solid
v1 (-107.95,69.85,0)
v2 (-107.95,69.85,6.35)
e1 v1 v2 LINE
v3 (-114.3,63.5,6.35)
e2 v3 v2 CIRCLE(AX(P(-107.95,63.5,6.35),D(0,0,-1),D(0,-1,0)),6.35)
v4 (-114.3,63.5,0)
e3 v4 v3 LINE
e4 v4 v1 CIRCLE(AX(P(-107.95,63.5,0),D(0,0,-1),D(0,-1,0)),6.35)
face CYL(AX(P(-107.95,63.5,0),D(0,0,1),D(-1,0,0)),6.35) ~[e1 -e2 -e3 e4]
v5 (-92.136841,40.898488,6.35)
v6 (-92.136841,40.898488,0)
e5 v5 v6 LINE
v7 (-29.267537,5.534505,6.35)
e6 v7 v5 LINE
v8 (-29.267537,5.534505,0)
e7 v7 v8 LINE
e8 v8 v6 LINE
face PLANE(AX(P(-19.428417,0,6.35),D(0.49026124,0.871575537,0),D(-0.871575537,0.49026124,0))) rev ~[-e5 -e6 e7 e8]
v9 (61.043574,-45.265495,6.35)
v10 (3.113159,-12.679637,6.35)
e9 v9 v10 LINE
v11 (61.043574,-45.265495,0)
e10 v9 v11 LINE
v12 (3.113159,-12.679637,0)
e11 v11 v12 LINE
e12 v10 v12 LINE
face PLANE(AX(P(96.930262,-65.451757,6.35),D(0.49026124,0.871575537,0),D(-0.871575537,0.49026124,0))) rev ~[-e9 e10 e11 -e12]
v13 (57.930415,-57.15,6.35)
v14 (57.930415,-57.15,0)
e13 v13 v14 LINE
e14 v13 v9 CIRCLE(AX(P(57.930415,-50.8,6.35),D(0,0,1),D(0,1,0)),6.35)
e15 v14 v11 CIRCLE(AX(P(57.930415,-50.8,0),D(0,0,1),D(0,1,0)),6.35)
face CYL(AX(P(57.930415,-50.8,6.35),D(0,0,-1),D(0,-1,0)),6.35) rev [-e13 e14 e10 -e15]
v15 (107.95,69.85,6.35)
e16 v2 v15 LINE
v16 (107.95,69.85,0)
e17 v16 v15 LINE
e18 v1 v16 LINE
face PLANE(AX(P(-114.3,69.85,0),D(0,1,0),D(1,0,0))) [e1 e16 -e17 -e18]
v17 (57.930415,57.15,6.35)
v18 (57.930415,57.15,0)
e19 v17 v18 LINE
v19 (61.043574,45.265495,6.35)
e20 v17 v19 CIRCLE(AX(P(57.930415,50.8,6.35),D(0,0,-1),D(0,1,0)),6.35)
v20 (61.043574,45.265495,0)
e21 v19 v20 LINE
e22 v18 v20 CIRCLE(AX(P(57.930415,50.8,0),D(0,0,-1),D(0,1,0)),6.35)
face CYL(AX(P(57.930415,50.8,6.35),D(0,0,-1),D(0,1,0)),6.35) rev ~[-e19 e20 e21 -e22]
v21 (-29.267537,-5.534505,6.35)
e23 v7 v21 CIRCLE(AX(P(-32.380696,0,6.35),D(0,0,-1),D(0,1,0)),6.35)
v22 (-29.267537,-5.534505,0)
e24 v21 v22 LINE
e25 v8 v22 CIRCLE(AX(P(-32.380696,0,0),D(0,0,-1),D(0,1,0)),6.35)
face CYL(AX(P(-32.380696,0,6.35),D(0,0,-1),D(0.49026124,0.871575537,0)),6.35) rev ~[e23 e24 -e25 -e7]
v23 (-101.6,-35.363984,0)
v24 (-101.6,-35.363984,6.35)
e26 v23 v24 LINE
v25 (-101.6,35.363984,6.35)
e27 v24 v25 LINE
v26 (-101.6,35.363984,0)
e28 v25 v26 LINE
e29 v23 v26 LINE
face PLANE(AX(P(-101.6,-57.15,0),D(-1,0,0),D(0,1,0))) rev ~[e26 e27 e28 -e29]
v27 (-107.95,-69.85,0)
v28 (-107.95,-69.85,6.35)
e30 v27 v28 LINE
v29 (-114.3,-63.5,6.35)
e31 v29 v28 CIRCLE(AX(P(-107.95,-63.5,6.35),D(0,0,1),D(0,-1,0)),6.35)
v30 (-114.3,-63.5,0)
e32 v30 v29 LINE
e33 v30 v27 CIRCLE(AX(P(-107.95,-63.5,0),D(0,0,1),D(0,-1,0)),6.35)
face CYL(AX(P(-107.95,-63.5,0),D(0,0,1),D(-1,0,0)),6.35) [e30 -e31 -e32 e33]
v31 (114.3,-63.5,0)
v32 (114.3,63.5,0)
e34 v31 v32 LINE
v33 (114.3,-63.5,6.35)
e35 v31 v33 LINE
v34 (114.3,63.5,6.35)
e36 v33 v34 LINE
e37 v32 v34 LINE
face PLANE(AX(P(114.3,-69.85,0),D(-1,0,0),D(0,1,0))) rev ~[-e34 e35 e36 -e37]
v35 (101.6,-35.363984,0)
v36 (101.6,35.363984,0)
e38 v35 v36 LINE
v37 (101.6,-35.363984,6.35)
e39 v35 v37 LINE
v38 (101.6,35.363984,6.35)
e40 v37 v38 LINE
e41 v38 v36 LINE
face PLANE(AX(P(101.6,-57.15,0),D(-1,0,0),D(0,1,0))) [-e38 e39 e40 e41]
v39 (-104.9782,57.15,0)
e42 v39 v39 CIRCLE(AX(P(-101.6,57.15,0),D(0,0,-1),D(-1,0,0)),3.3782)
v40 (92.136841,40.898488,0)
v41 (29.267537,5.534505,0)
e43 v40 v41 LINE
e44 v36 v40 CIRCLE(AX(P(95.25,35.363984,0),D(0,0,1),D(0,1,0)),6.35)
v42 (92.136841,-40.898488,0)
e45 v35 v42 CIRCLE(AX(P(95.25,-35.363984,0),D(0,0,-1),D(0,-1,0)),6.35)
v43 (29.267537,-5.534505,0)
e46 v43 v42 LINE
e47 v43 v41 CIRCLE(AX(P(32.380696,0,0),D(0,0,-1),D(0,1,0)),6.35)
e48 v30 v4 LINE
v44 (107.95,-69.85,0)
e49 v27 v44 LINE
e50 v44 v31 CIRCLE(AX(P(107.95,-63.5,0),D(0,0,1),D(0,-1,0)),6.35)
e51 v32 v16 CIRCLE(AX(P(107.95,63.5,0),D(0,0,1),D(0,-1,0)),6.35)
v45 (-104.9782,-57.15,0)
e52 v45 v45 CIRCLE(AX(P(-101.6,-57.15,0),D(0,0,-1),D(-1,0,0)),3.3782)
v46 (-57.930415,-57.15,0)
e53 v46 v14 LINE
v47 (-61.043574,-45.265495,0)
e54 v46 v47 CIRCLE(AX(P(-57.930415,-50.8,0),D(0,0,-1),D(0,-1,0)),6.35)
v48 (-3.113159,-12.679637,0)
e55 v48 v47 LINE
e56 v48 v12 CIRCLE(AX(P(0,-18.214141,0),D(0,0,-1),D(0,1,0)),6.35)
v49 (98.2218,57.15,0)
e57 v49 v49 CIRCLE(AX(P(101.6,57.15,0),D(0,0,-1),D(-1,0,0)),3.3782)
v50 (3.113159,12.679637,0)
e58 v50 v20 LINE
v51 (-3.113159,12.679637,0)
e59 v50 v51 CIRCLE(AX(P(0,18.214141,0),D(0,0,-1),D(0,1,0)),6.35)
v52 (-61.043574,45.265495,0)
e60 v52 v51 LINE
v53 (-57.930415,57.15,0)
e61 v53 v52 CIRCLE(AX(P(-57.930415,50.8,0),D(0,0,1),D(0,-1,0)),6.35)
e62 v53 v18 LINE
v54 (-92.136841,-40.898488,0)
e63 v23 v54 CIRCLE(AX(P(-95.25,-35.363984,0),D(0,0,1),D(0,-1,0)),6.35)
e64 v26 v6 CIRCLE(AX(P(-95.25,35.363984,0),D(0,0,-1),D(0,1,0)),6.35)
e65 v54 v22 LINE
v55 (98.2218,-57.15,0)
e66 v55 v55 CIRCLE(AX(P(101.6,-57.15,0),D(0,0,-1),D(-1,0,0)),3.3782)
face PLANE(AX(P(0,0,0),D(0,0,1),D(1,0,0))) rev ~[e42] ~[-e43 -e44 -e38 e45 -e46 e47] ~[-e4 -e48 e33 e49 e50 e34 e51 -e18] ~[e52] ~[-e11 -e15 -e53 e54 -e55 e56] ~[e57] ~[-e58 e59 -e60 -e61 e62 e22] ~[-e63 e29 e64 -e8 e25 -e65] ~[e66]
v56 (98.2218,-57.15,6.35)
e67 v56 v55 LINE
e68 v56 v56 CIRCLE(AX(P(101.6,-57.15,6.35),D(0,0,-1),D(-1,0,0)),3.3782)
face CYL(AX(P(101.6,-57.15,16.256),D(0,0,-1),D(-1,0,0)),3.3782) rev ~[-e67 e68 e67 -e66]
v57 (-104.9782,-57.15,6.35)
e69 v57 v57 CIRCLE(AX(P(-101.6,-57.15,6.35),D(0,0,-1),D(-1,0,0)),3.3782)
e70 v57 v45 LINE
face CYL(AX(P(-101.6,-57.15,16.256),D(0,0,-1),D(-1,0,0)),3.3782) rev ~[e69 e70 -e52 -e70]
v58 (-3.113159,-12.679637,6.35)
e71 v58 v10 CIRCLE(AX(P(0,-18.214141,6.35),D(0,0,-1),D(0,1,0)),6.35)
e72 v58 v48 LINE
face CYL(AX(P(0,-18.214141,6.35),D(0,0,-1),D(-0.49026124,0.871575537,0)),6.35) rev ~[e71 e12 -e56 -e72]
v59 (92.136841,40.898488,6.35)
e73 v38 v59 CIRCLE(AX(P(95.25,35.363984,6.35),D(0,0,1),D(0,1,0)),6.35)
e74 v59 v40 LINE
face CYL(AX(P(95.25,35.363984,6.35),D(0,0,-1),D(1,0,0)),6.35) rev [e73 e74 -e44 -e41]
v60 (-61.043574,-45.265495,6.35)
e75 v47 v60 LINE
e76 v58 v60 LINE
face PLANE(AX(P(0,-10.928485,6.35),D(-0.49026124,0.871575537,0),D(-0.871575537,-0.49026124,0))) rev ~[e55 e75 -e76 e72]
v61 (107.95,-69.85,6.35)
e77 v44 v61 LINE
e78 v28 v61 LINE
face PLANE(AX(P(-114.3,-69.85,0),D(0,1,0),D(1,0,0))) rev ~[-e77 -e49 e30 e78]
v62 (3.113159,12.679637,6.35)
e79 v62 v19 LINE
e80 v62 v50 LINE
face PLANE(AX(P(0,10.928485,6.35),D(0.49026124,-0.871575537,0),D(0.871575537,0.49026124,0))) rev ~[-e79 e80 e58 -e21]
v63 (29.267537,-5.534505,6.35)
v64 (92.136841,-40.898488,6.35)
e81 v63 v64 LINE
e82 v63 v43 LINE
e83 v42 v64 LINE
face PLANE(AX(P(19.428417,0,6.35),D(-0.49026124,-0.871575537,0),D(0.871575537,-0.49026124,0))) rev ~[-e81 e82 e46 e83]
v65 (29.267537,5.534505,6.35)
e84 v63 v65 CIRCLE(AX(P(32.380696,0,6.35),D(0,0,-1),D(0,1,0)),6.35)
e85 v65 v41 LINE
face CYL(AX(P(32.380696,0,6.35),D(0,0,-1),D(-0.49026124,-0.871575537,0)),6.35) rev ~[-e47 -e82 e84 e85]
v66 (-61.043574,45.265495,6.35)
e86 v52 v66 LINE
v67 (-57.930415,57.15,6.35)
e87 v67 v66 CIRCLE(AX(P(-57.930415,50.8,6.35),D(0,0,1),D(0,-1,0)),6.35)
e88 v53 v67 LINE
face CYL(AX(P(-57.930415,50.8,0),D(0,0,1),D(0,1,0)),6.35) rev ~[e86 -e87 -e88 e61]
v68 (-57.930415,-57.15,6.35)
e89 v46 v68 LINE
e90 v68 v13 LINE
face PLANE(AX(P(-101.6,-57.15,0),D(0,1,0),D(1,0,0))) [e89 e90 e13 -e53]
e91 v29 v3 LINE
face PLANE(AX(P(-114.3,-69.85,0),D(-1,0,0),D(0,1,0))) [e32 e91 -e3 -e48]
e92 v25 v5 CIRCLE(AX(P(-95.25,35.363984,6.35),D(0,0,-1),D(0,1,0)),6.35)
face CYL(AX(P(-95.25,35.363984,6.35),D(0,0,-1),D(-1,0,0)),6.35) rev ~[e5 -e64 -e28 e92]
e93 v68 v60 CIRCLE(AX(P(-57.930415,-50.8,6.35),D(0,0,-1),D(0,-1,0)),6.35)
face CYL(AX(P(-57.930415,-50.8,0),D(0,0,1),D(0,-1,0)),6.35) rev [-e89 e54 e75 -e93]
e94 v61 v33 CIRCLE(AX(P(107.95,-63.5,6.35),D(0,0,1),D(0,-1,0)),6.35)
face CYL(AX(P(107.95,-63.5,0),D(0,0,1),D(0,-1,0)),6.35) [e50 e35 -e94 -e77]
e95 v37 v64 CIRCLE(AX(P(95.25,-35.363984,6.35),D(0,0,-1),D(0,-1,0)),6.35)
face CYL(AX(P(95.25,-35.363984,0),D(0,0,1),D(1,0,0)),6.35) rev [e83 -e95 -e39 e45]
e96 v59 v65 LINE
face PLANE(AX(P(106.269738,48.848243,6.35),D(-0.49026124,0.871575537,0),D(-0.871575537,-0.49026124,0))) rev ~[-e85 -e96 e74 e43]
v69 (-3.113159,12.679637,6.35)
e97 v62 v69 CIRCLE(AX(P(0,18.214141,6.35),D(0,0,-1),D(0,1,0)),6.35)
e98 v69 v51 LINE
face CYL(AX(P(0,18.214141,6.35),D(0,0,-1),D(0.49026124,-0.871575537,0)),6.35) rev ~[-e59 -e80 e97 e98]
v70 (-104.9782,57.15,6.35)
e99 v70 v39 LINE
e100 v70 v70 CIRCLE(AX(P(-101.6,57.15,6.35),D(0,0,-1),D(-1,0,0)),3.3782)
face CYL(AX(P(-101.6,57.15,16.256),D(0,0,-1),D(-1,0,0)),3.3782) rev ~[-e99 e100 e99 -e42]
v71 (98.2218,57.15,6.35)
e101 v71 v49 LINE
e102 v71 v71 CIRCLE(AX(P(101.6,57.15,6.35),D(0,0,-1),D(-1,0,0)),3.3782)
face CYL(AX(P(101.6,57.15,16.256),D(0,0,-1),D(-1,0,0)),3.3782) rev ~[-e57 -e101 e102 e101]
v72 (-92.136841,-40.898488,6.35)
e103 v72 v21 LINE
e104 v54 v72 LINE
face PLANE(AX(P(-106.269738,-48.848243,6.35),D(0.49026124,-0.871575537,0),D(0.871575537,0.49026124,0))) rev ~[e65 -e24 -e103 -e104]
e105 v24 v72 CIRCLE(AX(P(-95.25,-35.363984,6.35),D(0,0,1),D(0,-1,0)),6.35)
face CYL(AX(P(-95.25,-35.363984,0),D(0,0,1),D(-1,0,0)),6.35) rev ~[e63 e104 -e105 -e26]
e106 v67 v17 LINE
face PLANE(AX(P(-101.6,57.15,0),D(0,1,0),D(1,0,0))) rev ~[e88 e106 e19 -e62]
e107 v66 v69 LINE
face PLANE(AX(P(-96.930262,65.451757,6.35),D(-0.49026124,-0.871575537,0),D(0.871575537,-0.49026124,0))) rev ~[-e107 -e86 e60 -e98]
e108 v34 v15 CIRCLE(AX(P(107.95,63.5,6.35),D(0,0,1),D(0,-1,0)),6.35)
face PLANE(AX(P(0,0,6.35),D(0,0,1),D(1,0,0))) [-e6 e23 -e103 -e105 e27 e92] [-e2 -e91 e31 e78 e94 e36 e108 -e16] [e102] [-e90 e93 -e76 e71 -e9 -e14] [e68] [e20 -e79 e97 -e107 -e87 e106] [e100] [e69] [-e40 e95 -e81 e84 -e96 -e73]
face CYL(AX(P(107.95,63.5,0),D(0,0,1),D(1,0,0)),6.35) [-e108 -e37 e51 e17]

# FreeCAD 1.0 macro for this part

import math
import FreeCAD as App
import Part
import Sketcher

V = App.Vector
Q = App.Units.Quantity


def edges_at(feature, points):
    """Names of the edges that pass closest to the given points."""
    edges = feature.Shape.Edges
    near = lambda p: min(range(len(edges)), key=lambda i: edges[i].distToShape(Part.Vertex(*p))[0])
    return sorted({f"Edge{near(p) + 1}" for p in points})

doc = App.newDocument("Part")
body = doc.addObject("PartDesign::Body", "Body")

# Sketch on XY plane
sketch1 = body.newObject("Sketcher::SketchObject", "Sketch")
sketch1.AttachmentSupport = (doc.getObject("XY_Plane"), [""])
sketch1.MapMode = "FlatFace"
sketch1.addGeometry([
    Part.LineSegment(V(-114.3, 69.85, 0), V(-114.3, -69.85, 0)),  # 0
    Part.LineSegment(V(-114.3, -69.85, 0), V(114.3, -69.85, 0)),  # 1
    Part.LineSegment(V(114.3, -69.85, 0), V(114.3, 69.85, 0)),  # 2
    Part.LineSegment(V(114.3, 69.85, 0), V(-114.3, 69.85, 0)),  # 3
    Part.LineSegment(V(101.6, -57.15, 0), V(-101.6, -57.15, 0)),  # 4
    Part.LineSegment(V(-101.6, -57.15, 0), V(-101.6, 57.15, 0)),  # 5
    Part.LineSegment(V(-101.6, 57.15, 0), V(101.6, 57.15, 0)),  # 6
    Part.LineSegment(V(101.6, 57.15, 0), V(101.6, -57.15, 0)),  # 7
], False)
sketch1.addConstraint([
    Sketcher.Constraint("Coincident", 0, 2, 1, 1),
    Sketcher.Constraint("Coincident", 1, 2, 2, 1),
    Sketcher.Constraint("Coincident", 2, 2, 3, 1),
    Sketcher.Constraint("Coincident", 3, 2, 0, 1),
    Sketcher.Constraint("Coincident", 4, 2, 5, 1),
    Sketcher.Constraint("Coincident", 5, 2, 6, 1),
    Sketcher.Constraint("Coincident", 6, 2, 7, 1),
    Sketcher.Constraint("Coincident", 7, 2, 4, 1),
    Sketcher.Constraint("Vertical", 0),
    Sketcher.Constraint("Horizontal", 1),
    Sketcher.Constraint("Vertical", 2),
    Sketcher.Constraint("Horizontal", 3),
    Sketcher.Constraint("Horizontal", 4),
    Sketcher.Constraint("Vertical", 5),
    Sketcher.Constraint("Horizontal", 6),
    Sketcher.Constraint("Vertical", 7),
    Sketcher.Constraint("Symmetric", 0, 2, 2, 2, -1, 1),
    Sketcher.Constraint("Symmetric", 4, 2, 6, 2, -1, 1),
    Sketcher.Constraint("DistanceX", 1, 1, 1, 2, Q("9 in")),
    Sketcher.Constraint("DistanceX", 4, 2, 4, 1, Q("8 in")),
    Sketcher.Constraint("DistanceY", 0, 2, 0, 1, Q("5.5 in")),
    Sketcher.Constraint("DistanceY", 5, 1, 5, 2, Q("4.5 in")),
])
pad1 = body.newObject("PartDesign::Pad", "Pad")
pad1.Profile = sketch1
pad1.Length = Q("0.25 in")

# Sketch on XY plane
sketch2 = body.newObject("Sketcher::SketchObject", "Sketch001")
sketch2.AttachmentSupport = (doc.getObject("XY_Plane"), [""])
sketch2.MapMode = "FlatFace"
sketch2.AttachmentOffset = App.Placement(V(0, 0, 0.25 * 25.4), App.Rotation())
sketch2.addGeometry([
    Part.LineSegment(V(0, 10.928485, 0), V(-96.930262, 65.451757, 0)),  # 0
    Part.ArcOfCircle(Part.Circle(V(-101.6, 57.15, 0), V(0, 0, 1), 9.525), math.radians(60.642246), math.radians(240.642246)),  # 1
    Part.LineSegment(V(-106.269738, 48.848243, 0), V(-19.428417, 0, 0)),  # 2
    Part.LineSegment(V(-19.428417, 0, 0), V(-106.269738, -48.848243, 0)),  # 3
    Part.ArcOfCircle(Part.Circle(V(-101.6, -57.15, 0), V(0, 0, 1), 9.525), math.radians(119.357754), math.radians(299.357754)),  # 4
    Part.LineSegment(V(-96.930262, -65.451757, 0), V(0, -10.928485, 0)),  # 5
    Part.LineSegment(V(0, -10.928485, 0), V(96.930262, -65.451757, 0)),  # 6
    Part.ArcOfCircle(Part.Circle(V(101.6, -57.15, 0), V(0, 0, 1), 9.525), math.radians(-119.357754), math.radians(60.642246)),  # 7
    Part.LineSegment(V(106.269738, -48.848243, 0), V(19.428417, 0, 0)),  # 8
    Part.LineSegment(V(19.428417, 0, 0), V(106.269738, 48.848243, 0)),  # 9
    Part.ArcOfCircle(Part.Circle(V(101.6, 57.15, 0), V(0, 0, 1), 9.525), math.radians(-60.642246), math.radians(119.357754)),  # 10
    Part.LineSegment(V(96.930262, 65.451757, 0), V(0, 10.928485, 0)),  # 11
], False)
sketch2.addConstraint([
    Sketcher.Constraint("Tangent", 0, 2, 1, 1),
    Sketcher.Constraint("Tangent", 1, 2, 2, 1),
    Sketcher.Constraint("Coincident", 2, 2, 3, 1),
    Sketcher.Constraint("Tangent", 3, 2, 4, 1),
    Sketcher.Constraint("Tangent", 4, 2, 5, 1),
    Sketcher.Constraint("Coincident", 5, 2, 6, 1),
    Sketcher.Constraint("Tangent", 6, 2, 7, 1),
    Sketcher.Constraint("Tangent", 7, 2, 8, 1),
    Sketcher.Constraint("Coincident", 8, 2, 9, 1),
    Sketcher.Constraint("Tangent", 9, 2, 10, 1),
    Sketcher.Constraint("Tangent", 10, 2, 11, 1),
    Sketcher.Constraint("Coincident", 11, 2, 0, 1),
    Sketcher.Constraint("Equal", 1, 4),
    Sketcher.Constraint("Equal", 4, 7),
    Sketcher.Constraint("Equal", 7, 10),
    Sketcher.Constraint("Symmetric", 1, 3, 7, 3, -1, 1),
    Sketcher.Constraint("Symmetric", 4, 3, 10, 3, -1, 1),
    Sketcher.Constraint("Symmetric", 2, 2, 8, 2, -1, 1),
    Sketcher.Constraint("Symmetric", 5, 2, 11, 2, -1, 1),
    Sketcher.Constraint("Symmetric", 4, 3, 7, 3, -2),
    Sketcher.Constraint("PointOnObject", 2, 2, -1),
    Sketcher.Constraint("PointOnObject", 5, 2, -2),
    Sketcher.Constraint("Parallel", 0, 2),
    Sketcher.Constraint("DistanceX", 1, 3, -1, 1, Q("4 in")),
    Sketcher.Constraint("Radius", 1, Q("0.375 in")),
    Sketcher.Constraint("DistanceY", 4, 3, 1, 3, Q("4.5 in")),
    Sketcher.Constraint("Distance", 0, 111.212692),
])
pad2 = body.newObject("PartDesign::Pad", "Pad001")
pad2.Profile = sketch2
pad2.Length = Q("0.25 in")
pad2.Reversed = True
doc.recompute()

fillet = body.newObject("PartDesign::Fillet", "Fillet")
fillet.Base = (pad2, edges_at(pad2, [
    (82.172, 57.15, 3.175),
    (-82.172, 57.15, 3.175),
    (101.6, -46.222, 3.175),
    (101.6, 46.222, 3.175),
    (-82.172, -57.15, 3.175),
    (82.172, -57.15, 3.175),
    (-101.6, 46.222, 3.175),
    (-101.6, -46.222, 3.175),
    (0, 10.928, 3.175),
    (19.428, 0, 3.175),
    (0, -10.928, 3.175),
    (-19.428, 0, 3.175),
]))
fillet.Radius = Q("0.25 in")
doc.recompute()

fillet2 = body.newObject("PartDesign::Fillet", "Fillet001")
fillet2.Base = (fillet, edges_at(fillet, [
    (114.3, -69.85, 3.175),
    (-114.3, -69.85, 3.175),
    (-114.3, 69.85, 3.175),
    (114.3, 69.85, 3.175),
]))
fillet2.Radius = Q("0.25 in")

# Sketch on XY plane
sketch3 = body.newObject("Sketcher::SketchObject", "Sketch002")
sketch3.AttachmentSupport = (doc.getObject("XY_Plane"), [""])
sketch3.MapMode = "FlatFace"
sketch3.AttachmentOffset = App.Placement(V(0, 0, 0.25 * 25.4), App.Rotation())
sketch3.addGeometry([
    Part.Circle(V(-101.6, 57.15, 0), V(0, 0, 1), 3.3782),
    Part.Circle(V(101.6, 57.15, 0), V(0, 0, 1), 3.3782),
    Part.Circle(V(-101.6, -57.15, 0), V(0, 0, 1), 3.3782),
    Part.Circle(V(101.6, -57.15, 0), V(0, 0, 1), 3.3782),
], False)
sketch3.addConstraint([
    Sketcher.Constraint("Equal", 0, 1),
    Sketcher.Constraint("Equal", 1, 2),
    Sketcher.Constraint("Equal", 2, 3),
    Sketcher.Constraint("Symmetric", 1, 3, 2, 3, -1, 1),
    Sketcher.Constraint("Symmetric", 0, 3, 3, 3, -1, 1),
    Sketcher.Constraint("Symmetric", 0, 3, 1, 3, -2),
    Sketcher.Constraint("Diameter", 0, Q("0.266 in")),
    Sketcher.Constraint("DistanceX", 0, 3, -1, 1, Q("4 in")),
    Sketcher.Constraint("DistanceY", 2, 3, 0, 3, Q("4.5 in")),
])
doc.recompute()
hole = body.newObject("PartDesign::Hole", "Hole")
hole.Profile = sketch3
hole.ThreadType = "None"
hole.Diameter = Q("0.266 in")
hole.DepthType = "Dimension"
hole.Depth = Q("0.39 in")
hole.DrillPoint = "Angled"
hole.DrillPointAngle = 118

doc.recompute()
